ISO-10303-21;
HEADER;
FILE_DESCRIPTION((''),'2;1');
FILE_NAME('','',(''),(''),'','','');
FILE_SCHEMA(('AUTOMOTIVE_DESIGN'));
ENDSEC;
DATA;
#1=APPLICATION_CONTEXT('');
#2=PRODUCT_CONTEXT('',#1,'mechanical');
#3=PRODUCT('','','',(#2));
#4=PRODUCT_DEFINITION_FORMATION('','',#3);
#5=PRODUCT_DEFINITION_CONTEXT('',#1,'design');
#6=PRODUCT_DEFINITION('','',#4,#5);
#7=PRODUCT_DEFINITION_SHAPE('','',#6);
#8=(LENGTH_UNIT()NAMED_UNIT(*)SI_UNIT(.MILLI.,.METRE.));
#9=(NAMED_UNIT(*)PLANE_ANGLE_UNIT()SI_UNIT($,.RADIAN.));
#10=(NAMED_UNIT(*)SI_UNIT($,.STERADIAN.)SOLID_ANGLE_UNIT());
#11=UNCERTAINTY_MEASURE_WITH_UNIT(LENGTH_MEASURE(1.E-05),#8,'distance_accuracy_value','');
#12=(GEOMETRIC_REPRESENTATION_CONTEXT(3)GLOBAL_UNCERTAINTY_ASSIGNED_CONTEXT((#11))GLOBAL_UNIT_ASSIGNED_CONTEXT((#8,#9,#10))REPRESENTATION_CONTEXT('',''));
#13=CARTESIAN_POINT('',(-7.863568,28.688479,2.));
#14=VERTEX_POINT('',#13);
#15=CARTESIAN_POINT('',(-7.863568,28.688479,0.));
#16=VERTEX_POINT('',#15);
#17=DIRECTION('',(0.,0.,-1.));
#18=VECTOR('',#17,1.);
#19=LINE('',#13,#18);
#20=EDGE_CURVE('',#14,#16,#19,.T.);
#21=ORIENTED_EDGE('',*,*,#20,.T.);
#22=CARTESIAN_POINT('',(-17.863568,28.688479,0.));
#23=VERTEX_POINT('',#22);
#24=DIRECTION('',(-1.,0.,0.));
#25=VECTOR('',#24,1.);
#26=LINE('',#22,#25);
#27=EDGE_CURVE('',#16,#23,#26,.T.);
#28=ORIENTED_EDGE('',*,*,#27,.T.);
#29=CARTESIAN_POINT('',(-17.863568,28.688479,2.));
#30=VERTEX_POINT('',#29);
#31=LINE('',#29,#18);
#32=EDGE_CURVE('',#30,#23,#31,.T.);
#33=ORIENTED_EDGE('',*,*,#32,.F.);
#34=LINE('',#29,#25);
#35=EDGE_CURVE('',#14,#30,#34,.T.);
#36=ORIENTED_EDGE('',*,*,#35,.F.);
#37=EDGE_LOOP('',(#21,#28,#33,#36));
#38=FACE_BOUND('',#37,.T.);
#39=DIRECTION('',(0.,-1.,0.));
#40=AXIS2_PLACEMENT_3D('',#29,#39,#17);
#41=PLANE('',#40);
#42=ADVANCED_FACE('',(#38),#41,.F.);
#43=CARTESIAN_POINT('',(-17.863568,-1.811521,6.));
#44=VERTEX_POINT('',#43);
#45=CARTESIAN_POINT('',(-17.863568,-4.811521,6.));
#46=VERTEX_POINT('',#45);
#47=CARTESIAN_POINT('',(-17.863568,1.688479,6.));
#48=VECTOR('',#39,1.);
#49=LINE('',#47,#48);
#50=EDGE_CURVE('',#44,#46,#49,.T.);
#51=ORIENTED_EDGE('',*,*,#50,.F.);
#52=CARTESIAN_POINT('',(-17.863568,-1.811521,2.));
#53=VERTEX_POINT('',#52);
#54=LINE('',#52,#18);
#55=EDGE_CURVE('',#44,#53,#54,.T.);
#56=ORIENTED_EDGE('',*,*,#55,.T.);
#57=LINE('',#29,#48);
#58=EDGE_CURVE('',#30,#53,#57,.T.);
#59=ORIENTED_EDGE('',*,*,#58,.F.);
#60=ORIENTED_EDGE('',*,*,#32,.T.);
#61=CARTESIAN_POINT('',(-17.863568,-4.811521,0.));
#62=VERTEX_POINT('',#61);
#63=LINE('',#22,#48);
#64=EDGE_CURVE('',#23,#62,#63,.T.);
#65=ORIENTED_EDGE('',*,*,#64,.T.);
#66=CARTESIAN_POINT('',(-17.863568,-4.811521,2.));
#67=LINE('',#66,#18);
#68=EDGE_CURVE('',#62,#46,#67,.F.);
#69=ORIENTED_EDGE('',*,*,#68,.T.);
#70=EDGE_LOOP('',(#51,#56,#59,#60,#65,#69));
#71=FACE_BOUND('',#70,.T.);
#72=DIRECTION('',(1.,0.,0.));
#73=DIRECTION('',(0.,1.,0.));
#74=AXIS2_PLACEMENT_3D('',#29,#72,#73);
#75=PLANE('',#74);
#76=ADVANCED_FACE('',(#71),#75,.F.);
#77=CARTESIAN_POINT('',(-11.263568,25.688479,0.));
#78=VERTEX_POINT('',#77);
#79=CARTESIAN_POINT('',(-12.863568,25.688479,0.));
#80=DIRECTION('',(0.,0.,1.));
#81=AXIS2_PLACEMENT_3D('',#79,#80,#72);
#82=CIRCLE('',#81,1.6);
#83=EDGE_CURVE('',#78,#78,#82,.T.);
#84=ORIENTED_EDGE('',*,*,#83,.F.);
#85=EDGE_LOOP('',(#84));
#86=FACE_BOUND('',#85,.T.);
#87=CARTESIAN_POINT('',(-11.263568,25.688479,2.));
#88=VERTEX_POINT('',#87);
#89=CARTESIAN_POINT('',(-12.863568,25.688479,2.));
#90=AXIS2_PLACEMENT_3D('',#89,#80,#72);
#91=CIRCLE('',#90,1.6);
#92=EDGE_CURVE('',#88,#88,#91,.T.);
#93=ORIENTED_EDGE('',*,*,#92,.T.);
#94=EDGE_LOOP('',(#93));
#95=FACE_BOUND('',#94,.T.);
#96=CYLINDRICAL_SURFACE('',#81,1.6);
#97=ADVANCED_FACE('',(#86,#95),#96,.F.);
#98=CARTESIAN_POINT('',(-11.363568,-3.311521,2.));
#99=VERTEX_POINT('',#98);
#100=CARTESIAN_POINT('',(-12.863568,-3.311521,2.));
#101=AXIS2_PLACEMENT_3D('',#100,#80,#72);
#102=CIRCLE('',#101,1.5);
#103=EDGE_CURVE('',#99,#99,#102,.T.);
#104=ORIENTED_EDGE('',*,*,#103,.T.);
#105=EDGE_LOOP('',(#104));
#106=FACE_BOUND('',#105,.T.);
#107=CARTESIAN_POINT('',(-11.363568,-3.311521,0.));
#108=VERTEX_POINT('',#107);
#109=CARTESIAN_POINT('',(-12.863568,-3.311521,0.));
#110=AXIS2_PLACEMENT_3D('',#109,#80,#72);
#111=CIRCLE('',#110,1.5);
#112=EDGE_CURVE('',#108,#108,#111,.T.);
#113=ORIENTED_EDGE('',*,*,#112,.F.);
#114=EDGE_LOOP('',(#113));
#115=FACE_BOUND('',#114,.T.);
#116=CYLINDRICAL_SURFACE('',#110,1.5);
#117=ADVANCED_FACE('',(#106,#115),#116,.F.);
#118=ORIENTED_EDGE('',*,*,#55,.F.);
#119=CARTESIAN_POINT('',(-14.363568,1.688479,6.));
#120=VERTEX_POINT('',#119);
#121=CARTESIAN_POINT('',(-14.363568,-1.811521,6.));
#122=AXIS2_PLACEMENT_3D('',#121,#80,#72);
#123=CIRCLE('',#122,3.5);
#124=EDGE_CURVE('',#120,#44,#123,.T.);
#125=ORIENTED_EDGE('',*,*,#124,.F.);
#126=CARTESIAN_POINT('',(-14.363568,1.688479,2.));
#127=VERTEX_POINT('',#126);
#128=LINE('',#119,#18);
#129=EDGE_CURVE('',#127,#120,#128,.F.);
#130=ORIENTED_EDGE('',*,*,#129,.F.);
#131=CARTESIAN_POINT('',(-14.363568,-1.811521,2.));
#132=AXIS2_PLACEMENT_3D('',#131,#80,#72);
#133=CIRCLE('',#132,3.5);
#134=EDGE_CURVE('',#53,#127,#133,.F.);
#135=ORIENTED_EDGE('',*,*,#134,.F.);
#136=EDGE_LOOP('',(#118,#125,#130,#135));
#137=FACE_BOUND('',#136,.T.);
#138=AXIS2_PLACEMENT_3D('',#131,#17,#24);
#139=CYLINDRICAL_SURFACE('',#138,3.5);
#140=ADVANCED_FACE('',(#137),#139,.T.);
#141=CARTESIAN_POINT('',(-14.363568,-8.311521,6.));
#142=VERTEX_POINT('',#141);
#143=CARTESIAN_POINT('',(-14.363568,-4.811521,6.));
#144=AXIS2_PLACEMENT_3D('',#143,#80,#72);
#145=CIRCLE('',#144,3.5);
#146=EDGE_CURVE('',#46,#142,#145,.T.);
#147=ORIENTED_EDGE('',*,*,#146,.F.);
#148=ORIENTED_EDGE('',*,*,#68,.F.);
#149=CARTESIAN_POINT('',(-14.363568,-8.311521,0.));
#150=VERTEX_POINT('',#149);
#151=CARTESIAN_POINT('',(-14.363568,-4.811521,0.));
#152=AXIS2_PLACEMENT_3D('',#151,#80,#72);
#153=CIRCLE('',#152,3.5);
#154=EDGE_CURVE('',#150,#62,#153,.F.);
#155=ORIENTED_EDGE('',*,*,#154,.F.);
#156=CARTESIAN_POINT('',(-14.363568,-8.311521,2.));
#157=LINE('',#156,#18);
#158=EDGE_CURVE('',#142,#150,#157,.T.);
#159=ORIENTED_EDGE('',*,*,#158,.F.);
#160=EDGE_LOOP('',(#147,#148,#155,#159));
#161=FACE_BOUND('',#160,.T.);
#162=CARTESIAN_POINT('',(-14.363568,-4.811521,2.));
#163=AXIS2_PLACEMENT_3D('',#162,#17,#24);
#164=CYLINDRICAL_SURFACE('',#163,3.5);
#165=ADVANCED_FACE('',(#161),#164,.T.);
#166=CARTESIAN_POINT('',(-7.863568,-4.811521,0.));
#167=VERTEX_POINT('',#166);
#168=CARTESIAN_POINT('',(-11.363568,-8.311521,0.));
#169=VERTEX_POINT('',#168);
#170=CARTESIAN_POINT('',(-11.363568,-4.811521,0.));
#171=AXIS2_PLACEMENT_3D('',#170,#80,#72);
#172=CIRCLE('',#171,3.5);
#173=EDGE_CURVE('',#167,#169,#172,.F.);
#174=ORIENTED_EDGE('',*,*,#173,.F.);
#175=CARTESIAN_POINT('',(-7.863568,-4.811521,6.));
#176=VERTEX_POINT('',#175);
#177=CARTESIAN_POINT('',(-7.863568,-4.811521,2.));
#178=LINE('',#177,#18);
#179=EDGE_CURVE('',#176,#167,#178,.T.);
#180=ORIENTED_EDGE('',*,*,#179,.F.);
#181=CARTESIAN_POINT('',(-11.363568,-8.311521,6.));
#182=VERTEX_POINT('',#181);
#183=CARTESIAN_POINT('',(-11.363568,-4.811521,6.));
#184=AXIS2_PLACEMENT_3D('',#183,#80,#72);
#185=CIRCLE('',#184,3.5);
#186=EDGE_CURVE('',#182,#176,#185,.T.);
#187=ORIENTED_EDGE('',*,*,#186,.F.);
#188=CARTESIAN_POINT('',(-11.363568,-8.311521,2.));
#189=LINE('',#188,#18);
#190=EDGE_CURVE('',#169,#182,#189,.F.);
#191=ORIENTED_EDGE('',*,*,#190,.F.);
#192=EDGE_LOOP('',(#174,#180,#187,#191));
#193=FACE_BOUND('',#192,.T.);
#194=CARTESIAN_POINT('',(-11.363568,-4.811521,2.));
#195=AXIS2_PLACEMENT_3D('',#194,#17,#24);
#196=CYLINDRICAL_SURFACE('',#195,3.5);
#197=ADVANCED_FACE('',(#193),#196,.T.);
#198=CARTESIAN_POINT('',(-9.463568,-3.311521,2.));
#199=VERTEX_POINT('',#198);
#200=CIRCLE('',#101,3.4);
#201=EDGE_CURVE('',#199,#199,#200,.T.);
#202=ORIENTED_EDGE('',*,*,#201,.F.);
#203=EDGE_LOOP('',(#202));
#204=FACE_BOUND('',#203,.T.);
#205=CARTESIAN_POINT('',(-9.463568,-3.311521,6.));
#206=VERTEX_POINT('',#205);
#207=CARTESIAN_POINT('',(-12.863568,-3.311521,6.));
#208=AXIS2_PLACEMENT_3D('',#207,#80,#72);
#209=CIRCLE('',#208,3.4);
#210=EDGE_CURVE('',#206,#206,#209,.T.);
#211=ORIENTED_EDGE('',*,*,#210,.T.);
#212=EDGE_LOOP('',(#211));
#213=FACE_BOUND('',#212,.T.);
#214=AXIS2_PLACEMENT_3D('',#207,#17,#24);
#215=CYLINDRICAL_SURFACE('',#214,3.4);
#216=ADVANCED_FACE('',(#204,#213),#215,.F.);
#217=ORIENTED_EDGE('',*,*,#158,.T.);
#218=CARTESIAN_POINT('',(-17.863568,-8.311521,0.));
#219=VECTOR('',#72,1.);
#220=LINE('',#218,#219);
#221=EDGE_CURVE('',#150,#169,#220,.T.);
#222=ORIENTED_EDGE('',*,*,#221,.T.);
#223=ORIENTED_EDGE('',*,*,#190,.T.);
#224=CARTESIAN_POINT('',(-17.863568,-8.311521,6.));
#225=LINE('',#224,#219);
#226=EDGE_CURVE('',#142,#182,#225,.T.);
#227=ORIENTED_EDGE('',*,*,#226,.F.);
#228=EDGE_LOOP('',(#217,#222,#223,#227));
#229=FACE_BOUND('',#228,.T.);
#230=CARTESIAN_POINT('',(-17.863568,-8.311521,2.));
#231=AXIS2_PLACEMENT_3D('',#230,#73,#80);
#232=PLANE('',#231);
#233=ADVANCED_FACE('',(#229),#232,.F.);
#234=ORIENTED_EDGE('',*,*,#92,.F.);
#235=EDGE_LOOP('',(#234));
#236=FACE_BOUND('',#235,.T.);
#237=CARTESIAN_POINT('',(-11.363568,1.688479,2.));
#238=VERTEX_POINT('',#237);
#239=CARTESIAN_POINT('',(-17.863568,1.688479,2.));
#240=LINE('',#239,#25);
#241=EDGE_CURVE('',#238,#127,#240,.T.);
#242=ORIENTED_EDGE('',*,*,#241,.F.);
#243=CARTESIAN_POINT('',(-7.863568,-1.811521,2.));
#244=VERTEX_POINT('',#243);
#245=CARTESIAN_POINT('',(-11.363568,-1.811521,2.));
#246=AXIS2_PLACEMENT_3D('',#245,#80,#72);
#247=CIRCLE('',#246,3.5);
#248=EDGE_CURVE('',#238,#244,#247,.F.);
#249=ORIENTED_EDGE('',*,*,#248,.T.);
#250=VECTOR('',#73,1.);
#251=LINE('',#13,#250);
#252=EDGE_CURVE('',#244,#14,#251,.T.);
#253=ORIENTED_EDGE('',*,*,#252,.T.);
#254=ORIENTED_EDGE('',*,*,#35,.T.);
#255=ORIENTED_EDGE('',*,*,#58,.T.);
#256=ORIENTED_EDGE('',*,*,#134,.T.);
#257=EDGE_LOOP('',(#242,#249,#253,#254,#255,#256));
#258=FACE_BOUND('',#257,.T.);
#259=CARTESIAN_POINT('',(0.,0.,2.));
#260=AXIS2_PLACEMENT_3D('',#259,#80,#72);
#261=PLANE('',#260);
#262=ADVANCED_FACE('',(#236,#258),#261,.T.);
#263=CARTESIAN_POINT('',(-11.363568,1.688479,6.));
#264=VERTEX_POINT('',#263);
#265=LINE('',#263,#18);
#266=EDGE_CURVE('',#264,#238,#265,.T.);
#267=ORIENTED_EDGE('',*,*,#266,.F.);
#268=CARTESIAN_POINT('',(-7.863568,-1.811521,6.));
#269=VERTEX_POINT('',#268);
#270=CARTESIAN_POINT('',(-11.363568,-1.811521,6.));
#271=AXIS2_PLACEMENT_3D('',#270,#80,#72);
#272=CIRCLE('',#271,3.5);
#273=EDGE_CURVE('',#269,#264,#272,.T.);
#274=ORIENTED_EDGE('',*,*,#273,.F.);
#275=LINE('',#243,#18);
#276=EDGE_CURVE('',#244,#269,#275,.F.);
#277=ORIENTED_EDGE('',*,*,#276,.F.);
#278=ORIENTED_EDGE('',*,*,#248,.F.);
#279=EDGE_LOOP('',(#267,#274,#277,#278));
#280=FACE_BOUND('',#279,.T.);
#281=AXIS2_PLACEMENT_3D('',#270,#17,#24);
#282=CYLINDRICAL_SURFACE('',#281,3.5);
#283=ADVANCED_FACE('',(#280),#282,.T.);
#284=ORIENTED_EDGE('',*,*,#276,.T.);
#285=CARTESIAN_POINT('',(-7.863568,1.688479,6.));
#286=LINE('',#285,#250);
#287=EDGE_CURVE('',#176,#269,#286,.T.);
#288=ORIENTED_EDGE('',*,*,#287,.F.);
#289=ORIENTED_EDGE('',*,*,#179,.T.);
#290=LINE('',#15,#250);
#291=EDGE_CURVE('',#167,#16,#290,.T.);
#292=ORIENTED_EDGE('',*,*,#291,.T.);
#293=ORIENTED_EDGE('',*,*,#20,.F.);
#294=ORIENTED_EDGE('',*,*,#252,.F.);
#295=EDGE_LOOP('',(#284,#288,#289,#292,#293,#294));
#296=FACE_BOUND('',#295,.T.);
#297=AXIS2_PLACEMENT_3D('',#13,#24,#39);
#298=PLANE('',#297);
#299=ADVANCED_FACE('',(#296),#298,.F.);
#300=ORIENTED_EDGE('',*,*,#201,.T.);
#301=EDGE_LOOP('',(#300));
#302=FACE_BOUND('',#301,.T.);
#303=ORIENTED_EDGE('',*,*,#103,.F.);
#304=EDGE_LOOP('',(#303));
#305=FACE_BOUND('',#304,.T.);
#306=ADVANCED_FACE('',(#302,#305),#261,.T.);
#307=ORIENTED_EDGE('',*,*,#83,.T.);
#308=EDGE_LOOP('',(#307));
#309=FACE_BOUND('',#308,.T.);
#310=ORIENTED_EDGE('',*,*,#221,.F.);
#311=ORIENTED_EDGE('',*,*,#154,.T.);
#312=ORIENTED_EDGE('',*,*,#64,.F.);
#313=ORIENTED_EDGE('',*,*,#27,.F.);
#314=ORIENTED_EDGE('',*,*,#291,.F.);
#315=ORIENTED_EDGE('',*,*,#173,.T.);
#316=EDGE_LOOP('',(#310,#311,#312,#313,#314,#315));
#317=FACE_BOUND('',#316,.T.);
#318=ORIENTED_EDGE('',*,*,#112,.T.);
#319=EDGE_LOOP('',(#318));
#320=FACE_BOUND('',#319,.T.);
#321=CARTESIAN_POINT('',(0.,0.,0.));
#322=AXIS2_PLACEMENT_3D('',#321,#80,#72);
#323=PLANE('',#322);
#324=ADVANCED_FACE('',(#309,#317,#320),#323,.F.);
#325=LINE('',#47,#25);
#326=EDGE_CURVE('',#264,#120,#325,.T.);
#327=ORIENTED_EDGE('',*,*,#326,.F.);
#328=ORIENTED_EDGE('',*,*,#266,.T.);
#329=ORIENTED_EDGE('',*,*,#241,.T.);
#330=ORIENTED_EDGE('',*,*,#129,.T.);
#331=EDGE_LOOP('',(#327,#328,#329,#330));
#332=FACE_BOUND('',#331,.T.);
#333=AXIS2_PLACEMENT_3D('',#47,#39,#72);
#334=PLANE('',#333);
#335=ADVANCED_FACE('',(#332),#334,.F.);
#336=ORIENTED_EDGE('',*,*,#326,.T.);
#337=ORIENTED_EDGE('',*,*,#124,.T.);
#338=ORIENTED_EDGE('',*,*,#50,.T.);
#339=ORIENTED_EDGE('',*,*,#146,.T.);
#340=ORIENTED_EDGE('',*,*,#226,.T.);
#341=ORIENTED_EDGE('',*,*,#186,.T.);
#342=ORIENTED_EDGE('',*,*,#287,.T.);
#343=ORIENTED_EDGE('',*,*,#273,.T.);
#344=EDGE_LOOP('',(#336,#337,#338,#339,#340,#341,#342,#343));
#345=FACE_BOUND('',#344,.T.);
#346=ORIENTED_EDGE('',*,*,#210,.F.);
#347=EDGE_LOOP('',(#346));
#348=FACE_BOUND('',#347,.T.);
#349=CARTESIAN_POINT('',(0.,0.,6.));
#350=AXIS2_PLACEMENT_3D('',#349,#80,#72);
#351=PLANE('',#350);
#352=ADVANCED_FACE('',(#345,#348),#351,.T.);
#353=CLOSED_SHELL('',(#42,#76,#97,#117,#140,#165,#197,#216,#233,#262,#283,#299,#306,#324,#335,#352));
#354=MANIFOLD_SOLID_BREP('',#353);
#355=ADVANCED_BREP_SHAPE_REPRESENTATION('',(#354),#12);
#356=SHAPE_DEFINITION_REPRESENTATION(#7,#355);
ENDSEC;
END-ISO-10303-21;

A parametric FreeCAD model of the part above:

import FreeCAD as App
import Part
import Sketcher


def edges_at(feature, points):
    """Names of the edges that pass closest to the given points."""
    edges = feature.Shape.Edges
    near = lambda p: min(range(len(edges)), key=lambda i: edges[i].distToShape(Part.Vertex(*p))[0])
    return sorted({f"Edge{near(p) + 1}" for p in points})

doc = App.newDocument("Part")
body = doc.addObject("PartDesign::Body", "Body")

sketch1 = doc.addObject("Sketcher::SketchObject", "Sketch")
body.addObject(sketch1)
sketch1.AttachmentSupport = (doc.XY_Plane, [""])
sketch1.MapMode = "FlatFace"
sketch1.addGeometry([
    Part.LineSegment(App.Vector(-18, 29, 0), App.Vector(-18, -8, 0)),
    Part.LineSegment(App.Vector(-18, -8, 0), App.Vector(-8, -8, 0)),
    Part.LineSegment(App.Vector(-8, -8, 0), App.Vector(-8, 29, 0)),
    Part.LineSegment(App.Vector(-8, 29, 0), App.Vector(-18, 29, 0)),
], False)
sketch1.addConstraint([
    Sketcher.Constraint("Coincident", 0, 2, 1, 1),
    Sketcher.Constraint("Coincident", 1, 2, 2, 1),
    Sketcher.Constraint("Coincident", 2, 2, 3, 1),
    Sketcher.Constraint("Coincident", 3, 2, 0, 1),
    Sketcher.Constraint("Vertical", 0),
    Sketcher.Constraint("Horizontal", 1),
    Sketcher.Constraint("Vertical", 2),
    Sketcher.Constraint("Horizontal", 3),
    Sketcher.Constraint("DistanceX", 1, 1, 1, 2, 10.0),
    Sketcher.Constraint("DistanceY", 0, 2, 0, 1, 37.0),
    Sketcher.Constraint("DistanceY", 0, 2, -1, 1, 8.311521),
    Sketcher.Constraint("DistanceX", 0, 2, -1, 1, 17.863568),
])
pad1 = doc.addObject("PartDesign::Pad", "Pad")
body.addObject(pad1)
pad1.Profile = sketch1
pad1.Length = 2

sketch2 = doc.addObject("Sketcher::SketchObject", "Sketch001")
body.addObject(sketch2)
sketch2.AttachmentSupport = (doc.XY_Plane, [""])
sketch2.MapMode = "FlatFace"
sketch2.AttachmentOffset = App.Placement(App.Vector(0, 0, 2), App.Rotation())
sketch2.addGeometry([
    Part.LineSegment(App.Vector(-17.9, 1.7, 0), App.Vector(-17.9, -8.3, 0)),
    Part.LineSegment(App.Vector(-17.9, -8.3, 0), App.Vector(-7.9, -8.3, 0)),
    Part.LineSegment(App.Vector(-7.9, -8.3, 0), App.Vector(-7.9, 1.7, 0)),
    Part.LineSegment(App.Vector(-7.9, 1.7, 0), App.Vector(-17.9, 1.7, 0)),
    Part.Circle(App.Vector(-12.9, -3.3, 0), App.Vector(0, 0, 1), 3.4),
], False)
sketch2.addConstraint([
    Sketcher.Constraint("Coincident", 0, 2, 1, 1),
    Sketcher.Constraint("Coincident", 1, 2, 2, 1),
    Sketcher.Constraint("Coincident", 2, 2, 3, 1),
    Sketcher.Constraint("Coincident", 3, 2, 0, 1),
    Sketcher.Constraint("Vertical", 0),
    Sketcher.Constraint("Horizontal", 1),
    Sketcher.Constraint("Vertical", 2),
    Sketcher.Constraint("Horizontal", 3),
    Sketcher.Constraint("Equal", 3, 0),
    Sketcher.Constraint("Diameter", 4, 6.8),
    Sketcher.Constraint("DistanceX", 1, 1, 1, 2, 10.0),
    Sketcher.Constraint("DistanceX", 0, 2, 4, 3, 5.0),
    Sketcher.Constraint("DistanceY", 0, 2, 4, 3, 5.0),
    Sketcher.Constraint("DistanceY", 4, 3, -1, 1, 3.311521),
    Sketcher.Constraint("DistanceX", 4, 3, -1, 1, 12.863568),
])
pad2 = doc.addObject("PartDesign::Pad", "Pad001")
body.addObject(pad2)
pad2.Profile = sketch2
pad2.Length = 4

sketch3 = doc.addObject("Sketcher::SketchObject", "Sketch002")
body.addObject(sketch3)
sketch3.AttachmentSupport = (doc.XY_Plane, [""])
sketch3.MapMode = "FlatFace"
sketch3.AttachmentOffset = App.Placement(App.Vector(0, 0, 2), App.Rotation())
sketch3.addGeometry(Part.Circle(App.Vector(-12.9, 25.7, 0), App.Vector(0, 0, 1), 1.6), False)
sketch3.addConstraint([
    Sketcher.Constraint("Diameter", 0, 3.2),
    Sketcher.Constraint("DistanceY", -1, 1, 0, 3, 25.688479),
    Sketcher.Constraint("DistanceX", 0, 3, -1, 1, 12.863568),
])
pocket1 = doc.addObject("PartDesign::Pocket", "Pocket")
body.addObject(pocket1)
pocket1.Profile = sketch3
pocket1.Length = 2
doc.recompute()

fillet = doc.addObject("PartDesign::Fillet", "Fillet")
body.addObject(fillet)
fillet.Base = (pocket1, edges_at(pocket1, [
    (-7.864, -8.312, 3),
    (-17.864, -8.312, 3),
    (-17.864, 1.688, 4),
    (-7.864, 1.688, 4),
]))
fillet.Radius = 3.5

sketch4 = doc.addObject("Sketcher::SketchObject", "Sketch003")
body.addObject(sketch4)
sketch4.AttachmentSupport = (doc.XY_Plane, [""])
sketch4.MapMode = "FlatFace"
sketch4.AttachmentOffset = App.Placement(App.Vector(0, 0, 2), App.Rotation())
sketch4.addGeometry(Part.Circle(App.Vector(-12.9, -3.3, 0), App.Vector(0, 0, 1), 1.5), False)
sketch4.addConstraint([
    Sketcher.Constraint("Diameter", 0, 3.0),
    Sketcher.Constraint("DistanceY", 0, 3, -1, 1, 3.311521),
    Sketcher.Constraint("DistanceX", 0, 3, -1, 1, 12.863568),
])
pocket2 = doc.addObject("PartDesign::Pocket", "Pocket001")
body.addObject(pocket2)
pocket2.Profile = sketch4
pocket2.Length = 2

doc.recompute()
